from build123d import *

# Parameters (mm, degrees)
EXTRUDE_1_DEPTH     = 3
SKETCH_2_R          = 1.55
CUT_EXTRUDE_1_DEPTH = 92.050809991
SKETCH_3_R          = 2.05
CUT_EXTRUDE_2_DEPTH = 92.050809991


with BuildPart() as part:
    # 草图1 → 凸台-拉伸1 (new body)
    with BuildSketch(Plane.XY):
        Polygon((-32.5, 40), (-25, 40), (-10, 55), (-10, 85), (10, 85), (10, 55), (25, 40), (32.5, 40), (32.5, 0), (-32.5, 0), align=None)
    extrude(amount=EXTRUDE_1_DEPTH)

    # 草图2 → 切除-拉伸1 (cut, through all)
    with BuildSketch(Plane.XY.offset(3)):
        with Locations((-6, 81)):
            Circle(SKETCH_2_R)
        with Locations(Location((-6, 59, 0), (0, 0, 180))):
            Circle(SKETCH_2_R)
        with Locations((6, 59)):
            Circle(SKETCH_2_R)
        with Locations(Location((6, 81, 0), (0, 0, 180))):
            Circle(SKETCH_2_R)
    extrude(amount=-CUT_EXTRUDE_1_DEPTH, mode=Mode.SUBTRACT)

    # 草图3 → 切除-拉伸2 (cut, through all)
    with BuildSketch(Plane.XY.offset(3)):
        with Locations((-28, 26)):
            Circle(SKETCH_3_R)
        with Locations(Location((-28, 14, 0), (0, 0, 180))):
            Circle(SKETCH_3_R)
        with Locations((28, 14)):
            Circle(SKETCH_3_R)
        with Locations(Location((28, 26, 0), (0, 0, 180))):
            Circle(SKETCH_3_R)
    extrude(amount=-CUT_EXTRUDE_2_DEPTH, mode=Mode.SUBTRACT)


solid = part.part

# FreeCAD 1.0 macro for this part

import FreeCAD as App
import Part
import Sketcher

V = App.Vector
Q = App.Units.Quantity

doc = App.newDocument("Part")
body = doc.addObject("PartDesign::Body", "Body")

sketch1 = body.newObject("Sketcher::SketchObject", "Sketch")
sketch1.AttachmentSupport = (doc.getObject("XY_Plane"), [""])
sketch1.MapMode = "FlatFace"
sketch1.addGeometry([
    Part.LineSegment(V(-25, 40, 0), V(-32, 40, 0)),
    Part.LineSegment(V(-32, 40, 0), V(-32, 0, 0)),
    Part.LineSegment(V(-32, 0, 0), V(32, 0, 0)),
    Part.LineSegment(V(32, 0, 0), V(32, 40, 0)),
    Part.LineSegment(V(32, 40, 0), V(25, 40, 0)),
    Part.LineSegment(V(25, 40, 0), V(10, 55, 0)),
    Part.LineSegment(V(10, 55, 0), V(10, 85, 0)),
    Part.LineSegment(V(10, 85, 0), V(-10, 85, 0)),
    Part.LineSegment(V(-10, 85, 0), V(-10, 55, 0)),
    Part.LineSegment(V(-10, 55, 0), V(-25, 40, 0)),
], False)
sketch1.addConstraint([
    Sketcher.Constraint("Coincident", 0, 2, 1, 1),
    Sketcher.Constraint("Coincident", 1, 2, 2, 1),
    Sketcher.Constraint("Coincident", 2, 2, 3, 1),
    Sketcher.Constraint("Coincident", 3, 2, 4, 1),
    Sketcher.Constraint("Coincident", 4, 2, 5, 1),
    Sketcher.Constraint("Coincident", 5, 2, 6, 1),
    Sketcher.Constraint("Coincident", 6, 2, 7, 1),
    Sketcher.Constraint("Coincident", 7, 2, 8, 1),
    Sketcher.Constraint("Coincident", 8, 2, 9, 1),
    Sketcher.Constraint("Coincident", 9, 2, 0, 1),
    Sketcher.Constraint("Horizontal", 0),
    Sketcher.Constraint("Vertical", 1),
    Sketcher.Constraint("Horizontal", 2),
    Sketcher.Constraint("Vertical", 3),
    Sketcher.Constraint("Horizontal", 4),
    Sketcher.Constraint("Vertical", 6),
    Sketcher.Constraint("Horizontal", 7),
    Sketcher.Constraint("Vertical", 8),
    Sketcher.Constraint("Symmetric", 1, 2, 2, 2, -1, 1),
    Sketcher.Constraint("Symmetric", 5, 2, 8, 2, -2),
    Sketcher.Constraint("Symmetric", 4, 2, 9, 2, -2),
    Sketcher.Constraint("Perpendicular", 5, 9),
    Sketcher.Constraint("DistanceX", 2, 1, 2, 2, Q("65 mm")),
    Sketcher.Constraint("DistanceX", 7, 2, 7, 1, Q("20 mm")),
    Sketcher.Constraint("DistanceY", 1, 2, 1, 1, Q("40 mm")),
    Sketcher.Constraint("DistanceY", 6, 1, 6, 2, Q("30 mm")),
    Sketcher.Constraint("DistanceX", 0, 2, 0, 1, Q("7.5 mm")),
])
pad1 = body.newObject("PartDesign::Pad", "Pad")
pad1.Profile = sketch1
pad1.Length = 3

sketch2 = body.newObject("Sketcher::SketchObject", "Sketch001")
sketch2.AttachmentSupport = (doc.getObject("XY_Plane"), [""])
sketch2.MapMode = "FlatFace"
sketch2.AttachmentOffset = App.Placement(V(0, 0, 3), App.Rotation())
sketch2.addGeometry([
    Part.Circle(V(-6, 81, 0), V(0, 0, 1), 1.6),
    Part.Circle(V(-6, 59, 0), V(0, 0, 1), 1.6),
    Part.Circle(V(6, 59, 0), V(0, 0, 1), 1.6),
    Part.Circle(V(6, 81, 0), V(0, 0, 1), 1.6),
], False)
sketch2.addConstraint([
    Sketcher.Constraint("Equal", 0, 1),
    Sketcher.Constraint("Equal", 1, 2),
    Sketcher.Constraint("Equal", 2, 3),
    Sketcher.Constraint("Symmetric", 1, 3, 2, 3, -2),
    Sketcher.Constraint("Symmetric", 0, 3, 3, 3, -2),
    Sketcher.Constraint("Vertical", 0, 3, 1, 3),
    Sketcher.Constraint("Diameter", 0, Q("3.1 mm")),
    Sketcher.Constraint("DistanceX", 0, 3, -1, 1, Q("6 mm")),
    Sketcher.Constraint("DistanceY", -1, 1, 0, 3, Q("81 mm")),
    Sketcher.Constraint("DistanceY", -1, 1, 1, 3, Q("59 mm")),
])
pocket1 = body.newObject("PartDesign::Pocket", "Pocket")
pocket1.Profile = sketch2
pocket1.Type = "ThroughAll"

sketch3 = body.newObject("Sketcher::SketchObject", "Sketch002")
sketch3.AttachmentSupport = (doc.getObject("XY_Plane"), [""])
sketch3.MapMode = "FlatFace"
sketch3.AttachmentOffset = App.Placement(V(0, 0, 3), App.Rotation())
sketch3.addGeometry([
    Part.Circle(V(-28, 26, 0), V(0, 0, 1), 2),
    Part.Circle(V(-28, 14, 0), V(0, 0, 1), 2),
    Part.Circle(V(28, 14, 0), V(0, 0, 1), 2),
    Part.Circle(V(28, 26, 0), V(0, 0, 1), 2),
], False)
sketch3.addConstraint([
    Sketcher.Constraint("Equal", 0, 1),
    Sketcher.Constraint("Equal", 1, 2),
    Sketcher.Constraint("Equal", 2, 3),
    Sketcher.Constraint("Symmetric", 1, 3, 2, 3, -2),
    Sketcher.Constraint("Symmetric", 0, 3, 3, 3, -2),
    Sketcher.Constraint("Vertical", 0, 3, 1, 3),
    Sketcher.Constraint("Diameter", 0, Q("4.1 mm")),
    Sketcher.Constraint("DistanceX", 0, 3, -1, 1, Q("28 mm")),
    Sketcher.Constraint("DistanceY", -1, 1, 0, 3, Q("26 mm")),
    Sketcher.Constraint("DistanceY", -1, 1, 1, 3, Q("14 mm")),
])
pocket2 = body.newObject("PartDesign::Pocket", "Pocket001")
pocket2.Profile = sketch3
pocket2.Type = "ThroughAll"

doc.recompute()
